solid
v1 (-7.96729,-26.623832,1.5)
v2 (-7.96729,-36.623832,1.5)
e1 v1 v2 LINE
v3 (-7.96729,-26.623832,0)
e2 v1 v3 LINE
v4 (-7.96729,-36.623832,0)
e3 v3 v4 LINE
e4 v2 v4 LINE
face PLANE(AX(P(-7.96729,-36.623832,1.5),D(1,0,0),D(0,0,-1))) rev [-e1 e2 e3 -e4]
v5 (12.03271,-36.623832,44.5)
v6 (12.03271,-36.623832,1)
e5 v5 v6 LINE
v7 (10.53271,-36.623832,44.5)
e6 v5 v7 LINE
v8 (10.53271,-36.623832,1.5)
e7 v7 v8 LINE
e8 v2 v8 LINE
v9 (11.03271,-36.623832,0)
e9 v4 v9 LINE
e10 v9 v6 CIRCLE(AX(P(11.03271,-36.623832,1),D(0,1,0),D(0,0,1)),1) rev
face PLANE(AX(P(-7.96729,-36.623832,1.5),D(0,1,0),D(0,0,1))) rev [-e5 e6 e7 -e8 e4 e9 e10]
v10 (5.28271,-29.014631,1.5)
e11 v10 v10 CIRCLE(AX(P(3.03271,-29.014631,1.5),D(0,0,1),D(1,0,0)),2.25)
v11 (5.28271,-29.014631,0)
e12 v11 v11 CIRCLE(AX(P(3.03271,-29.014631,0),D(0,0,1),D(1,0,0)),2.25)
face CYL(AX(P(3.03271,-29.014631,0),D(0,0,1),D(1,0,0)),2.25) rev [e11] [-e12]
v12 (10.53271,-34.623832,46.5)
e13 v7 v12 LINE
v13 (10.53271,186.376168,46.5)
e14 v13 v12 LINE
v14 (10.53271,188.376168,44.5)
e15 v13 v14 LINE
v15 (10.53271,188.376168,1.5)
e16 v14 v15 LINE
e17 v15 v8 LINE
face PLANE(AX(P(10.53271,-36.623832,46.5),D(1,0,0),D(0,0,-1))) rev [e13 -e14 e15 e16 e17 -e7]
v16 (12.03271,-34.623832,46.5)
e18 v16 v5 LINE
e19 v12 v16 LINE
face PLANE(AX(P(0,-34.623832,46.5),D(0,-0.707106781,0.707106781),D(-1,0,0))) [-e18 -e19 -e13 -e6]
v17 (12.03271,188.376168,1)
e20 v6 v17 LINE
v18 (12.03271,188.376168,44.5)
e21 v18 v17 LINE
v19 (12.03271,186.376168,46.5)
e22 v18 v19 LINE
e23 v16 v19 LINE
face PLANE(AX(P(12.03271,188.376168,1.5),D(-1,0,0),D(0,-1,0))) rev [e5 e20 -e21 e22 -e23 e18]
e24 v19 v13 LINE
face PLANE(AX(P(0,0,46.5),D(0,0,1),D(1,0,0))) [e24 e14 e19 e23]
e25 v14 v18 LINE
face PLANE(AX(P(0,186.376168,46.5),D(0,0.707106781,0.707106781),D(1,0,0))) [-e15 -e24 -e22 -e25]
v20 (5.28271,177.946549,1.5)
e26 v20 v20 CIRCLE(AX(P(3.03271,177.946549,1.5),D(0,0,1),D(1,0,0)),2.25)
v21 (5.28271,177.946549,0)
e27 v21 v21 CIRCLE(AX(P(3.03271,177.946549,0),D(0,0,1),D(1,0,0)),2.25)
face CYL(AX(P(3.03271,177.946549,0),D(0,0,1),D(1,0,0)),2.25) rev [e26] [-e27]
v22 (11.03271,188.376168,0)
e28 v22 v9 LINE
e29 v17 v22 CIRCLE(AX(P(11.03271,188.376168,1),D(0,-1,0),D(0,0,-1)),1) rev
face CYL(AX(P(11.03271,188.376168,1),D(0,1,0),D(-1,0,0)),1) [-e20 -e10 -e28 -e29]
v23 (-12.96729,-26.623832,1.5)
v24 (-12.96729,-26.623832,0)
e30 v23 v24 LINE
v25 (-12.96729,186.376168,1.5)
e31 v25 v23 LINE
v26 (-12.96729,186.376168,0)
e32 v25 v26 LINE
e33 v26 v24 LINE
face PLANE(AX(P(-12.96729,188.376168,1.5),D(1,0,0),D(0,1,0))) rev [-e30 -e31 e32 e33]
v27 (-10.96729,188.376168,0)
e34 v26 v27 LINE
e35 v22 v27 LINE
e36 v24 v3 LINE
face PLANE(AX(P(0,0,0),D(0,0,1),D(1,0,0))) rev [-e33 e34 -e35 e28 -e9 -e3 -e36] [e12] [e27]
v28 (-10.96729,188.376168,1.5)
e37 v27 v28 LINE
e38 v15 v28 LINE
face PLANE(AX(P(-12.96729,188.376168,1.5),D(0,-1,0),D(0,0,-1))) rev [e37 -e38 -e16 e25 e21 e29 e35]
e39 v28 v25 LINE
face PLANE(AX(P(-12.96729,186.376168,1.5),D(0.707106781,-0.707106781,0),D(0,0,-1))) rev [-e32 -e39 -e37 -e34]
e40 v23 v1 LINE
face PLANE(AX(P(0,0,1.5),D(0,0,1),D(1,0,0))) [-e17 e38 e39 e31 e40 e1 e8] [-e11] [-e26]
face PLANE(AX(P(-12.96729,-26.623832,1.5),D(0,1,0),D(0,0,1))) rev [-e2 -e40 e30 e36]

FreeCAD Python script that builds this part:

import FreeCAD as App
import Part
import Sketcher
from FreeCAD import Vector
Q = App.Units.Quantity


def edges_at(feature, points):
    """Names of the edges that pass closest to the given points."""
    edges = feature.Shape.Edges
    near = lambda p: min(range(len(edges)), key=lambda i: edges[i].distToShape(Part.Vertex(*p))[0])
    return sorted({f"Edge{near(p) + 1}" for p in points})

doc = App.newDocument("Part")
body = doc.addObject("PartDesign::Body", "Body")

sketch1 = body.newObject("Sketcher::SketchObject", "Sketch")
sketch1.AttachmentSupport = (doc.getObject("XY_Plane"), [""])
sketch1.MapMode = "FlatFace"
sketch1.addGeometry([
    Part.LineSegment(Vector(12, 188, 0), Vector(-13, 188, 0)),
    Part.LineSegment(Vector(-13, 188, 0), Vector(-13, -27, 0)),
    Part.LineSegment(Vector(-13, -27, 0), Vector(-8, -27, 0)),
    Part.LineSegment(Vector(-8, -27, 0), Vector(-8, -37, 0)),
    Part.LineSegment(Vector(-8, -37, 0), Vector(12, -37, 0)),
    Part.LineSegment(Vector(12, -37, 0), Vector(12, 188, 0)),
], False)
sketch1.addConstraint([
    Sketcher.Constraint("Coincident", 0, 2, 1, 1),
    Sketcher.Constraint("Coincident", 1, 2, 2, 1),
    Sketcher.Constraint("Coincident", 2, 2, 3, 1),
    Sketcher.Constraint("Coincident", 3, 2, 4, 1),
    Sketcher.Constraint("Coincident", 4, 2, 5, 1),
    Sketcher.Constraint("Coincident", 5, 2, 0, 1),
    Sketcher.Constraint("Horizontal", 0),
    Sketcher.Constraint("Vertical", 1),
    Sketcher.Constraint("Horizontal", 2),
    Sketcher.Constraint("Vertical", 3),
    Sketcher.Constraint("Horizontal", 4),
    Sketcher.Constraint("Vertical", 5),
    Sketcher.Constraint("DistanceX", 0, 2, 0, 1, Q("25 mm")),
    Sketcher.Constraint("DistanceX", 2, 1, 2, 2, Q("5 mm")),
    Sketcher.Constraint("DistanceY", 1, 2, 1, 1, Q("215 mm")),
    Sketcher.Constraint("DistanceY", 3, 2, 3, 1, Q("10 mm")),
    Sketcher.Constraint("DistanceX", 0, 2, -1, 1, Q("12.96729 mm")),
    Sketcher.Constraint("DistanceY", -1, 1, 0, 2, Q("188.376168 mm")),
])
pad1 = body.newObject("PartDesign::Pad", "Pad")
pad1.Profile = sketch1
pad1.Length = 1.5

sketch2 = body.newObject("Sketcher::SketchObject", "Sketch001")
sketch2.AttachmentSupport = (doc.getObject("XY_Plane"), [""])
sketch2.MapMode = "FlatFace"
sketch2.AttachmentOffset = App.Placement(Vector(0, 0, 1.5), App.Rotation())
sketch2.addGeometry([
    Part.LineSegment(Vector(10.5, 188.4, 0), Vector(10.5, -36.6, 0)),
    Part.LineSegment(Vector(10.5, -36.6, 0), Vector(12, -36.6, 0)),
    Part.LineSegment(Vector(12, -36.6, 0), Vector(12, 188.4, 0)),
    Part.LineSegment(Vector(12, 188.4, 0), Vector(10.5, 188.4, 0)),
], False)
sketch2.addConstraint([
    Sketcher.Constraint("Coincident", 0, 2, 1, 1),
    Sketcher.Constraint("Coincident", 1, 2, 2, 1),
    Sketcher.Constraint("Coincident", 2, 2, 3, 1),
    Sketcher.Constraint("Coincident", 3, 2, 0, 1),
    Sketcher.Constraint("Vertical", 0),
    Sketcher.Constraint("Horizontal", 1),
    Sketcher.Constraint("Vertical", 2),
    Sketcher.Constraint("Horizontal", 3),
    Sketcher.Constraint("DistanceY", 0, 2, 0, 1, Q("225 mm")),
    Sketcher.Constraint("DistanceX", 1, 1, 1, 2, Q("1.5 mm")),
    Sketcher.Constraint("DistanceX", -1, 1, 0, 2, Q("10.53271 mm")),
    Sketcher.Constraint("DistanceY", 0, 2, -1, 1, Q("36.623832 mm")),
])
pad2 = body.newObject("PartDesign::Pad", "Pad001")
pad2.Profile = sketch2
pad2.Length = 45
doc.recompute()

chamfer = body.newObject("PartDesign::Chamfer", "Chamfer")
chamfer.Base = (pad2, edges_at(pad2, [(-12.967, 188.376, 0.75), (11.283, 188.376, 46.5), (11.283, -36.624, 46.5)]))
chamfer.Size = 2
doc.recompute()

fillet = body.newObject("PartDesign::Fillet", "Fillet")
fillet.Base = (chamfer, edges_at(chamfer, [(12.033, 75.876, 0)]))
fillet.Radius = 1

sketch3 = body.newObject("Sketcher::SketchObject", "Sketch002")
sketch3.AttachmentSupport = (doc.getObject("XY_Plane"), [""])
sketch3.MapMode = "FlatFace"
sketch3.AttachmentOffset = App.Placement(Vector(0, 0, 1.5), App.Rotation())
sketch3.addGeometry([
    Part.Circle(Vector(3, 177.9, 0), Vector(0, 0, 1), 2.2),
    Part.Circle(Vector(3, -29, 0), Vector(0, 0, 1), 2.2),
], False)
sketch3.addConstraint([
    Sketcher.Constraint("Equal", 0, 1),
    Sketcher.Constraint("Vertical", 0, 3, 1, 3),
    Sketcher.Constraint("Diameter", 0, Q("4.5 mm")),
    Sketcher.Constraint("DistanceX", -1, 1, 0, 3, Q("3.03271 mm")),
    Sketcher.Constraint("DistanceY", -1, 1, 0, 3, Q("177.946549 mm")),
    Sketcher.Constraint("DistanceY", 1, 3, -1, 1, Q("29.014631 mm")),
])
pocket1 = body.newObject("PartDesign::Pocket", "Pocket")
pocket1.Profile = sketch3
pocket1.Type = "ThroughAll"

doc.recompute()
